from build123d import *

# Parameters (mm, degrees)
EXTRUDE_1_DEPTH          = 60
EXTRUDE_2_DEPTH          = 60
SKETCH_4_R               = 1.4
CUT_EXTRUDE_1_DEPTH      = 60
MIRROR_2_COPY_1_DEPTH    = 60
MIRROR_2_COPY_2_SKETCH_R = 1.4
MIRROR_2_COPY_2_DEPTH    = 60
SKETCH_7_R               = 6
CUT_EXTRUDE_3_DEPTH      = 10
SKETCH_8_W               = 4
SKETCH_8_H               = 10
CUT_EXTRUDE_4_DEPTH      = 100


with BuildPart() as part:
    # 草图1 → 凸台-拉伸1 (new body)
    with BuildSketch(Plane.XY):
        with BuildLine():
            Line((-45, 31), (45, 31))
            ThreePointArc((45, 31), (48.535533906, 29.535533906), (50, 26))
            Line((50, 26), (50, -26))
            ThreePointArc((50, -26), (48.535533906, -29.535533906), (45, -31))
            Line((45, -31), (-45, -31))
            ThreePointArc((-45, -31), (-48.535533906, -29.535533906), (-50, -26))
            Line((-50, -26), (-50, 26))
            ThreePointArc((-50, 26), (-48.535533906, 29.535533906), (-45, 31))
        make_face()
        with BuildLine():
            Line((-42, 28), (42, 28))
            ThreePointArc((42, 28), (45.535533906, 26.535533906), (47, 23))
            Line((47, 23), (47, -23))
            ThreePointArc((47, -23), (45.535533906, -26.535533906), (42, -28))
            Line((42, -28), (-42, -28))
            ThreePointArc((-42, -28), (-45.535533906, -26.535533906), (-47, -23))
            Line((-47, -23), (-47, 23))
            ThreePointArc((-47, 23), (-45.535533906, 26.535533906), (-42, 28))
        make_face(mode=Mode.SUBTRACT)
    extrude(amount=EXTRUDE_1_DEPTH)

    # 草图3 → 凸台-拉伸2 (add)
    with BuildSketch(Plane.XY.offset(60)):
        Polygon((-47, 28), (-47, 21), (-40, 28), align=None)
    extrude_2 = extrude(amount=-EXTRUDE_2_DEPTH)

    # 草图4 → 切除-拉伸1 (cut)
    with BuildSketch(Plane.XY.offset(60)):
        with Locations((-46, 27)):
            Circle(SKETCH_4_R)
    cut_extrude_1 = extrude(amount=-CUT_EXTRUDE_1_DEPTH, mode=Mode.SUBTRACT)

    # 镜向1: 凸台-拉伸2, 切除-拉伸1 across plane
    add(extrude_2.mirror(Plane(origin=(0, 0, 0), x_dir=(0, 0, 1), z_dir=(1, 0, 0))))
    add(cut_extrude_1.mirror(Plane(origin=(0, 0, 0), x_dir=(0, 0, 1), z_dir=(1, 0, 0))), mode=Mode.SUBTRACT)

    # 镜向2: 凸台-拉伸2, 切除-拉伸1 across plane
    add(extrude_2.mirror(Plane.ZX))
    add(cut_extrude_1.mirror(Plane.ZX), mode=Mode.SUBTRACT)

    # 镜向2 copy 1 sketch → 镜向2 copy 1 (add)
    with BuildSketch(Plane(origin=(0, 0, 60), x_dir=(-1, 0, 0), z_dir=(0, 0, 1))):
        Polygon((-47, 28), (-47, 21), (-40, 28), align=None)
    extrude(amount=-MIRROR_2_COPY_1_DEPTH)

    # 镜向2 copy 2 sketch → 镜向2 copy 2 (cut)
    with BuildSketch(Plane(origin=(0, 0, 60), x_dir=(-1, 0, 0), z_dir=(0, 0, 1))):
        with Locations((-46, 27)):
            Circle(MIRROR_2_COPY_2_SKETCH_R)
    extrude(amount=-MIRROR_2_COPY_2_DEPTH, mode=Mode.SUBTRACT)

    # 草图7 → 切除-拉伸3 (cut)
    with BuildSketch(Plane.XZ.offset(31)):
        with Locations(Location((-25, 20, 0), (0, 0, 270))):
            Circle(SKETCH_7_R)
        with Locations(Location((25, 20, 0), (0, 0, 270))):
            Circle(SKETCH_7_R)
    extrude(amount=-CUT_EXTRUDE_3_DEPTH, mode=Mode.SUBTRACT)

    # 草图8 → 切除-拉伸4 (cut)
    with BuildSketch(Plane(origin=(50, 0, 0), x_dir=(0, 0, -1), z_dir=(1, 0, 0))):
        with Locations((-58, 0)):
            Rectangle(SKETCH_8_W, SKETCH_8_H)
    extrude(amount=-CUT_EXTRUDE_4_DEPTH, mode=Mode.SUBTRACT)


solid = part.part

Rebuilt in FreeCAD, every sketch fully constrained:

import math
import FreeCAD as App
import Part
import Sketcher

V = App.Vector


def add_polygon(sketch, points):
    """Adds a closed chain of lines whose ends are joined by coincident constraints."""
    first, n = sketch.GeometryCount, len(points)
    for a, b in zip(points, points[1:] + points[:1]):
        sketch.addGeometry(Part.LineSegment(App.Vector(*a, 0), App.Vector(*b, 0)), False)
    for i in range(n):
        sketch.addConstraint(Sketcher.Constraint("Coincident", first + i, 2, first + (i + 1) % n, 1))

doc = App.newDocument("Part")
params = doc.addObject("Spreadsheet::Sheet", "Params")
for row, (alias, value) in enumerate([
    ("sketch1_radius", "5 mm"),
    ("sketch1_width", "90 mm"),
    ("sketch1_width2", "84 mm"),
    ("sketch1_height", "52 mm"),
    ("sketch1_height2", "46 mm"),
    ("pad1_length", "60 mm"),
    ("sketch2_width", "7 mm"),
    ("pad2_length", "60 mm"),
    ("sketch3_diameter", "2.8 mm"),
    ("pocket1_length", "60 mm"),
    ("sketch4_width", "7 mm"),
    ("pad3_length", "60 mm"),
    ("sketch5_diameter", "2.8 mm"),
    ("pocket2_length", "60 mm"),
    ("sketch6_diameter", "12 mm"),
    ("pocket3_length", "10 mm"),
    ("sketch7_width", "10 mm"),
    ("sketch7_height", "4 mm"),
    ("pocket4_length", "100 mm"),
], start=1):
    params.set(f"A{row}", alias)
    params.set(f"B{row}", "=" + value)
    params.setAlias(f"B{row}", alias)

body = doc.addObject("PartDesign::Body", "Body")

# Sketch on XY plane
sketch1 = doc.addObject("Sketcher::SketchObject", "Sketch")
body.addObject(sketch1)
sketch1.AttachmentSupport = (doc.XY_Plane, [""])
sketch1.MapMode = "FlatFace"
sketch1.addGeometry([
    Part.LineSegment(V(45, 31, 0), V(-45, 31, 0)),  # 0
    Part.ArcOfCircle(Part.Circle(V(-45, 26, 0), V(0, 0, 1), 5), math.radians(90), math.radians(180)),  # 1
    Part.LineSegment(V(-50, 26, 0), V(-50, -26, 0)),  # 2
    Part.ArcOfCircle(Part.Circle(V(-45, -26, 0), V(0, 0, 1), 5), math.radians(180), math.radians(270)),  # 3
    Part.LineSegment(V(-45, -31, 0), V(45, -31, 0)),  # 4
    Part.ArcOfCircle(Part.Circle(V(45, -26, 0), V(0, 0, 1), 5), math.radians(-90), math.radians(0)),  # 5
    Part.LineSegment(V(50, -26, 0), V(50, 26, 0)),  # 6
    Part.ArcOfCircle(Part.Circle(V(45, 26, 0), V(0, 0, 1), 5), math.radians(0), math.radians(90)),  # 7
    Part.LineSegment(V(-42, 28, 0), V(42, 28, 0)),  # 8
    Part.ArcOfCircle(Part.Circle(V(42, 23, 0), V(0, 0, 1), 5), math.radians(0), math.radians(90)),  # 9
    Part.LineSegment(V(47, 23, 0), V(47, -23, 0)),  # 10
    Part.ArcOfCircle(Part.Circle(V(42, -23, 0), V(0, 0, 1), 5), math.radians(-90), math.radians(0)),  # 11
    Part.LineSegment(V(42, -28, 0), V(-42, -28, 0)),  # 12
    Part.ArcOfCircle(Part.Circle(V(-42, -23, 0), V(0, 0, 1), 5), math.radians(180), math.radians(270)),  # 13
    Part.LineSegment(V(-47, -23, 0), V(-47, 23, 0)),  # 14
    Part.ArcOfCircle(Part.Circle(V(-42, 23, 0), V(0, 0, 1), 5), math.radians(90), math.radians(180)),  # 15
], False)
sketch1.addConstraint([
    Sketcher.Constraint("Tangent", 0, 2, 1, 1),
    Sketcher.Constraint("Tangent", 1, 2, 2, 1),
    Sketcher.Constraint("Tangent", 2, 2, 3, 1),
    Sketcher.Constraint("Tangent", 3, 2, 4, 1),
    Sketcher.Constraint("Tangent", 4, 2, 5, 1),
    Sketcher.Constraint("Tangent", 5, 2, 6, 1),
    Sketcher.Constraint("Tangent", 6, 2, 7, 1),
    Sketcher.Constraint("Tangent", 7, 2, 0, 1),
    Sketcher.Constraint("Tangent", 8, 2, 9, 2),
    Sketcher.Constraint("Tangent", 9, 1, 10, 1),
    Sketcher.Constraint("Tangent", 10, 2, 11, 2),
    Sketcher.Constraint("Tangent", 11, 1, 12, 1),
    Sketcher.Constraint("Tangent", 12, 2, 13, 2),
    Sketcher.Constraint("Tangent", 13, 1, 14, 1),
    Sketcher.Constraint("Tangent", 14, 2, 15, 2),
    Sketcher.Constraint("Tangent", 15, 1, 8, 1),
    Sketcher.Constraint("Horizontal", 0),
    Sketcher.Constraint("Vertical", 2),
    Sketcher.Constraint("Horizontal", 4),
    Sketcher.Constraint("Vertical", 6),
    Sketcher.Constraint("Horizontal", 8),
    Sketcher.Constraint("Vertical", 10),
    Sketcher.Constraint("Horizontal", 12),
    Sketcher.Constraint("Vertical", 14),
    Sketcher.Constraint("Equal", 1, 3),
    Sketcher.Constraint("Equal", 3, 5),
    Sketcher.Constraint("Equal", 5, 7),
    Sketcher.Constraint("Equal", 7, 9),
    Sketcher.Constraint("Equal", 9, 11),
    Sketcher.Constraint("Equal", 11, 13),
    Sketcher.Constraint("Equal", 13, 15),
    Sketcher.Constraint("Symmetric", 1, 3, 5, 3, -1, 1),
    Sketcher.Constraint("Symmetric", 9, 3, 13, 3, -1, 1),
    Sketcher.Constraint("Radius", 1, 5.0),
    Sketcher.Constraint("DistanceX", 0, 2, 0, 1, 90.0),
    Sketcher.Constraint("DistanceX", 8, 1, 8, 2, 84.0),
    Sketcher.Constraint("DistanceY", 2, 2, 2, 1, 52.0),
    Sketcher.Constraint("DistanceY", 10, 2, 10, 1, 46.0),
])
sketch1.setExpression("Constraints[33]", "Params.sketch1_radius")
sketch1.setExpression("Constraints[34]", "Params.sketch1_width")
sketch1.setExpression("Constraints[35]", "Params.sketch1_width2")
sketch1.setExpression("Constraints[36]", "Params.sketch1_height")
sketch1.setExpression("Constraints[37]", "Params.sketch1_height2")
pad1 = doc.addObject("PartDesign::Pad", "Pad")
body.addObject(pad1)
pad1.Profile = sketch1
pad1.setExpression("Length", "Params.pad1_length")

# Sketch on XY plane
sketch2 = doc.addObject("Sketcher::SketchObject", "Sketch001")
body.addObject(sketch2)
sketch2.AttachmentSupport = (doc.XY_Plane, [""])
sketch2.MapMode = "FlatFace"
sketch2.AttachmentOffset = App.Placement(V(0, 0, 60), App.Rotation())
add_polygon(sketch2, [(-47, 28), (-47, 21), (-40, 28)])  # lines 0-2
sketch2.addConstraint([
    Sketcher.Constraint("Vertical", 0),
    Sketcher.Constraint("Horizontal", 2),
    Sketcher.Constraint("Equal", 2, 0),
    Sketcher.Constraint("DistanceX", 2, 2, 2, 1, 7.0),
    Sketcher.Constraint("DistanceX", 0, 2, -1, 1, 47.0),
    Sketcher.Constraint("DistanceY", -1, 1, 0, 2, 21.0),
])
sketch2.setExpression("Constraints[6]", "Params.sketch2_width")
pad2 = doc.addObject("PartDesign::Pad", "Pad001")
body.addObject(pad2)
pad2.Profile = sketch2
pad2.setExpression("Length", "Params.pad2_length")
pad2.Reversed = True

# Sketch on XY plane
sketch3 = doc.addObject("Sketcher::SketchObject", "Sketch002")
body.addObject(sketch3)
sketch3.AttachmentSupport = (doc.XY_Plane, [""])
sketch3.MapMode = "FlatFace"
sketch3.AttachmentOffset = App.Placement(V(0, 0, 60), App.Rotation())
sketch3.addGeometry(Part.Circle(V(-46, 27, 0), V(0, 0, 1), 1.4), False)
sketch3.addConstraint([
    Sketcher.Constraint("Diameter", 0, 2.8),
    Sketcher.Constraint("DistanceX", 0, 3, -1, 1, 46.0),
    Sketcher.Constraint("DistanceY", -1, 1, 0, 3, 27.0),
])
sketch3.setExpression("Constraints[0]", "Params.sketch3_diameter")
pocket1 = doc.addObject("PartDesign::Pocket", "Pocket")
body.addObject(pocket1)
pocket1.Profile = sketch3
pocket1.setExpression("Length", "Params.pocket1_length")
doc.recompute()

mirrored = doc.addObject("PartDesign::Mirrored", "Mirrored")
body.addObject(mirrored)
mirrored.Originals = [pad2, pocket1]
mirrored.MirrorPlane = (doc.YZ_Plane, [""])
body.Tip = mirrored
doc.recompute()

mirrored2 = doc.addObject("PartDesign::Mirrored", "Mirrored001")
body.addObject(mirrored2)
mirrored2.Originals = [pad2, pocket1]
mirrored2.MirrorPlane = (doc.XZ_Plane, [""])
body.Tip = mirrored2

# Sketch on XY plane
sketch4 = doc.addObject("Sketcher::SketchObject", "Sketch003")
body.addObject(sketch4)
sketch4.AttachmentSupport = (doc.XY_Plane, [""])
sketch4.MapMode = "FlatFace"
sketch4.AttachmentOffset = App.Placement(V(0, 0, 60), App.Rotation())
add_polygon(sketch4, [(47, -28), (47, -21), (40, -28)])  # lines 0-2
sketch4.addConstraint([
    Sketcher.Constraint("Vertical", 0),
    Sketcher.Constraint("Horizontal", 2),
    Sketcher.Constraint("Equal", 2, 0),
    Sketcher.Constraint("DistanceX", 2, 1, 2, 2, 7.0),
    Sketcher.Constraint("DistanceX", -1, 1, 0, 2, 47.0),
    Sketcher.Constraint("DistanceY", 0, 2, -1, 1, 21.0),
])
sketch4.setExpression("Constraints[6]", "Params.sketch4_width")
pad3 = doc.addObject("PartDesign::Pad", "Pad002")
body.addObject(pad3)
pad3.Profile = sketch4
pad3.setExpression("Length", "Params.pad3_length")
pad3.Reversed = True

# Sketch on XY plane
sketch5 = doc.addObject("Sketcher::SketchObject", "Sketch004")
body.addObject(sketch5)
sketch5.AttachmentSupport = (doc.XY_Plane, [""])
sketch5.MapMode = "FlatFace"
sketch5.AttachmentOffset = App.Placement(V(0, 0, 60), App.Rotation())
sketch5.addGeometry(Part.Circle(V(46, -27, 0), V(0, 0, 1), 1.4), False)
sketch5.addConstraint([
    Sketcher.Constraint("Diameter", 0, 2.8),
    Sketcher.Constraint("DistanceX", -1, 1, 0, 3, 46.0),
    Sketcher.Constraint("DistanceY", 0, 3, -1, 1, 27.0),
])
sketch5.setExpression("Constraints[0]", "Params.sketch5_diameter")
pocket2 = doc.addObject("PartDesign::Pocket", "Pocket001")
body.addObject(pocket2)
pocket2.Profile = sketch5
pocket2.setExpression("Length", "Params.pocket2_length")

# Sketch on XZ plane
sketch6 = doc.addObject("Sketcher::SketchObject", "Sketch005")
body.addObject(sketch6)
sketch6.AttachmentSupport = (doc.XZ_Plane, [""])
sketch6.MapMode = "FlatFace"
sketch6.AttachmentOffset = App.Placement(V(0, 0, 31), App.Rotation())
sketch6.addGeometry([
    Part.Circle(V(-25, 20, 0), V(0, 0, 1), 6),
    Part.Circle(V(25, 20, 0), V(0, 0, 1), 6),
], False)
sketch6.addConstraint([
    Sketcher.Constraint("Equal", 0, 1),
    Sketcher.Constraint("Symmetric", 0, 3, 1, 3, -2),
    Sketcher.Constraint("Diameter", 0, 12.0),
    Sketcher.Constraint("DistanceX", 0, 3, -1, 1, 25.0),
    Sketcher.Constraint("DistanceY", -1, 1, 0, 3, 20.0),
])
sketch6.setExpression("Constraints[2]", "Params.sketch6_diameter")
pocket3 = doc.addObject("PartDesign::Pocket", "Pocket002")
body.addObject(pocket3)
pocket3.Profile = sketch6
pocket3.setExpression("Length", "Params.pocket3_length")

# Sketch on YZ plane
sketch7 = doc.addObject("Sketcher::SketchObject", "Sketch006")
body.addObject(sketch7)
sketch7.AttachmentSupport = (doc.YZ_Plane, [""])
sketch7.MapMode = "FlatFace"
sketch7.AttachmentOffset = App.Placement(V(0, 0, 50), App.Rotation())
add_polygon(sketch7, [(5, 60), (-5, 60), (-5, 56), (5, 56)])  # lines 0-3
sketch7.addConstraint([
    Sketcher.Constraint("Horizontal", 0),
    Sketcher.Constraint("Vertical", 1),
    Sketcher.Constraint("Horizontal", 2),
    Sketcher.Constraint("Vertical", 3),
    Sketcher.Constraint("DistanceX", 0, 2, 0, 1, 10.0),
    Sketcher.Constraint("DistanceY", 1, 2, 1, 1, 4.0),
    Sketcher.Constraint("DistanceX", 0, 2, -1, 1, 5.0),
    Sketcher.Constraint("DistanceY", -1, 1, 0, 2, 60.0),
])
sketch7.setExpression("Constraints[8]", "Params.sketch7_width")
sketch7.setExpression("Constraints[9]", "Params.sketch7_height")
pocket4 = doc.addObject("PartDesign::Pocket", "Pocket003")
body.addObject(pocket4)
pocket4.Profile = sketch7
pocket4.setExpression("Length", "Params.pocket4_length")

doc.recompute()
